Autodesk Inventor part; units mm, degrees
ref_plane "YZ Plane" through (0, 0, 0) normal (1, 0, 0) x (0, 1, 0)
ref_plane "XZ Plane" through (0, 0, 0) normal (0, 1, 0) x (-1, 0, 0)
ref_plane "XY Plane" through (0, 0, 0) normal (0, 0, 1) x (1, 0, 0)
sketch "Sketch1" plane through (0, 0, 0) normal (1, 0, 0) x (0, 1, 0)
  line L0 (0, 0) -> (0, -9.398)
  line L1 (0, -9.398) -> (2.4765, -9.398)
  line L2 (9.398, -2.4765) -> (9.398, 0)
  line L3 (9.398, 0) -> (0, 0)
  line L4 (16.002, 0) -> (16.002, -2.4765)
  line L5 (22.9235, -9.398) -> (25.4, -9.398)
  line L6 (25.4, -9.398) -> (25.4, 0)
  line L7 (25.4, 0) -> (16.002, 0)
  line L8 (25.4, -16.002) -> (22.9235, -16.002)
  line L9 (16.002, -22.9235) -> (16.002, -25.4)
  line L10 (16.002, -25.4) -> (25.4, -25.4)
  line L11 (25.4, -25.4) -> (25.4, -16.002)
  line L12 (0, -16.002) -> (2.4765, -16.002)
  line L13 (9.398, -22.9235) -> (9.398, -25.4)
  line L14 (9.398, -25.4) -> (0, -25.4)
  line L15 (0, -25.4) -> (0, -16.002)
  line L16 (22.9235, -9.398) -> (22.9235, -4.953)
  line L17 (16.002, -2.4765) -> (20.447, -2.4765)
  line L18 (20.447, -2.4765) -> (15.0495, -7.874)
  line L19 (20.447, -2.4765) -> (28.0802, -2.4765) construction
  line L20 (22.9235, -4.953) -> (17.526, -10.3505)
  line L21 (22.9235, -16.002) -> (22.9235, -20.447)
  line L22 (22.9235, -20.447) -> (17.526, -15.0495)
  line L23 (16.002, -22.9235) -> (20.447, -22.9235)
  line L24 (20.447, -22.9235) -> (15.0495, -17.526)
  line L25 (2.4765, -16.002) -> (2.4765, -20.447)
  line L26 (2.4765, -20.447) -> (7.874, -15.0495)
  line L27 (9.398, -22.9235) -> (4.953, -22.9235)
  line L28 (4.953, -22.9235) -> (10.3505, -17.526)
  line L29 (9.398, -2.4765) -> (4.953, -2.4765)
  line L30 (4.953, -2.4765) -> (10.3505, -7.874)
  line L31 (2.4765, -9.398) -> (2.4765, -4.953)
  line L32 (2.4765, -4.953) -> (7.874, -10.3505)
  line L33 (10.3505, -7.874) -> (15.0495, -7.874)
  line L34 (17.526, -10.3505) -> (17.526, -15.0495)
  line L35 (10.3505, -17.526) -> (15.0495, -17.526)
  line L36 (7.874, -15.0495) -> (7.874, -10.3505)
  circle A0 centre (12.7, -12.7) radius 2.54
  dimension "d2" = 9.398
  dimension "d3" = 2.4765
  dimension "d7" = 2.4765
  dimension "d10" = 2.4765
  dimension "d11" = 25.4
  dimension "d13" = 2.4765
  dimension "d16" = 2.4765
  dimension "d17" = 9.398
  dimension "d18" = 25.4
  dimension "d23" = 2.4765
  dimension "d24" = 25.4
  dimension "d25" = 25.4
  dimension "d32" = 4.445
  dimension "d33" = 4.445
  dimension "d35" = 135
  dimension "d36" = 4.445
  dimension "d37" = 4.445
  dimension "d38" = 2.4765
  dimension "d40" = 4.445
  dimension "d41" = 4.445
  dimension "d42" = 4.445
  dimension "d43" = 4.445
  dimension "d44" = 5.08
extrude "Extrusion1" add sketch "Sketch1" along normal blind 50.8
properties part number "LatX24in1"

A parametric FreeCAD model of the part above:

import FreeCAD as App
import Part
import Sketcher

V = App.Vector
Q = App.Units.Quantity


def add_polygon(sketch, points):
    """Adds a closed chain of lines whose ends are joined by coincident constraints."""
    first, n = sketch.GeometryCount, len(points)
    for a, b in zip(points, points[1:] + points[:1]):
        sketch.addGeometry(Part.LineSegment(App.Vector(*a, 0), App.Vector(*b, 0)), False)
    for i in range(n):
        sketch.addConstraint(Sketcher.Constraint("Coincident", first + i, 2, first + (i + 1) % n, 1))

doc = App.newDocument("Part")
body = doc.addObject("PartDesign::Body", "Body")

# Sketch on YZ plane
sketch1 = body.newObject("Sketcher::SketchObject", "Sketch")
sketch1.AttachmentSupport = (doc.getObject("YZ_Plane"), [""])
sketch1.MapMode = "FlatFace"
add_polygon(sketch1, [(9.4, 0), (0, 0), (0, -9.4), (2.5, -9.4), (2.5, -5), (7.9, -10.4), (7.9, -15), (2.5, -20.4), (2.5, -16), (0, -16), (0, -25.4), (9.4, -25.4), (9.4, -22.9), (5, -22.9), (10.4, -17.5), (15, -17.5), (20.4, -22.9), (16, -22.9), (16, -25.4), (25.4, -25.4), (25.4, -16), (22.9, -16), (22.9, -20.4), (17.5, -15), (17.5, -10.4), (22.9, -5), (22.9, -9.4), (25.4, -9.4), (25.4, 0), (16, 0), (16, -2.5), (20.4, -2.5), (15, -7.9), (10.4, -7.9), (5, -2.5), (9.4, -2.5)])  # lines 0-35
sketch1.addGeometry(Part.Circle(V(12.7, -12.7, 0), V(0, 0, 1), 2.5), False)  # 36
sketch1.addConstraint(Sketcher.Constraint("Horizontal", 0))
sketch1.addConstraint(Sketcher.Constraint("Vertical", 1))
sketch1.addConstraint(Sketcher.Constraint("Horizontal", 2))
sketch1.addConstraint(Sketcher.Constraint("Vertical", 3))
sketch1.addConstraint(Sketcher.Constraint("Vertical", 5))
sketch1.addConstraint(Sketcher.Constraint("Vertical", 7))
sketch1.addConstraint(Sketcher.Constraint("Horizontal", 8))
sketch1.addConstraint(Sketcher.Constraint("Vertical", 9))
sketch1.addConstraint(Sketcher.Constraint("Horizontal", 10))
sketch1.addConstraint(Sketcher.Constraint("Vertical", 11))
sketch1.addConstraint(Sketcher.Constraint("Horizontal", 12))
sketch1.addConstraint(Sketcher.Constraint("Horizontal", 14))
sketch1.addConstraint(Sketcher.Constraint("Horizontal", 16))
sketch1.addConstraint(Sketcher.Constraint("Vertical", 17))
sketch1.addConstraint(Sketcher.Constraint("Horizontal", 18))
sketch1.addConstraint(Sketcher.Constraint("Vertical", 19))
sketch1.addConstraint(Sketcher.Constraint("Horizontal", 20))
sketch1.addConstraint(Sketcher.Constraint("Vertical", 21))
sketch1.addConstraint(Sketcher.Constraint("Vertical", 23))
sketch1.addConstraint(Sketcher.Constraint("Vertical", 25))
sketch1.addConstraint(Sketcher.Constraint("Horizontal", 26))
sketch1.addConstraint(Sketcher.Constraint("Vertical", 27))
sketch1.addConstraint(Sketcher.Constraint("Horizontal", 28))
sketch1.addConstraint(Sketcher.Constraint("Vertical", 29))
sketch1.addConstraint(Sketcher.Constraint("Horizontal", 30))
sketch1.addConstraint(Sketcher.Constraint("Horizontal", 32))
sketch1.addConstraint(Sketcher.Constraint("Horizontal", 34))
sketch1.addConstraint(Sketcher.Constraint("Vertical", 35))
sketch1.addConstraint(Sketcher.Constraint("Coincident", 0, 2, -1, 1))
sketch1.addConstraint(Sketcher.Constraint("PointOnObject", 8, 2, -2))
sketch1.addConstraint(Sketcher.Constraint("PointOnObject", 27, 2, -1))
sketch1.addConstraint(Sketcher.Constraint("Perpendicular", 4, 6))
sketch1.addConstraint(Sketcher.Constraint("Parallel", 6, 13))
sketch1.addConstraint(Sketcher.Constraint("Perpendicular", 13, 15))
sketch1.addConstraint(Sketcher.Constraint("Parallel", 15, 22))
sketch1.addConstraint(Sketcher.Constraint("Perpendicular", 22, 24))
sketch1.addConstraint(Sketcher.Constraint("Parallel", 24, 31))
sketch1.addConstraint(Sketcher.Constraint("Perpendicular", 31, 33))
sketch1.addConstraint(Sketcher.Constraint("Horizontal", 12, 2, 15, 2))
sketch1.addConstraint(Sketcher.Constraint("Horizontal", 10, 2, 17, 2))
sketch1.addConstraint(Sketcher.Constraint("Horizontal", 8, 2, 19, 2))
sketch1.addConstraint(Sketcher.Constraint("Horizontal", 6, 2, 21, 2))
sketch1.addConstraint(Sketcher.Constraint("Horizontal", 5, 2, 22, 2))
sketch1.addConstraint(Sketcher.Constraint("Horizontal", 4, 2, 23, 2))
sketch1.addConstraint(Sketcher.Constraint("Horizontal", 3, 2, 24, 2))
sketch1.addConstraint(Sketcher.Constraint("Horizontal", 2, 2, 25, 2))
sketch1.addConstraint(Sketcher.Constraint("Horizontal", 30, 2, 33, 2))
sketch1.addConstraint(Sketcher.Constraint("Vertical", 3, 2, 6, 2))
sketch1.addConstraint(Sketcher.Constraint("Vertical", 21, 2, 24, 2))
sketch1.addConstraint(Sketcher.Constraint("Vertical", 19, 2, 26, 2))
sketch1.addConstraint(Sketcher.Constraint("Vertical", 17, 2, 28, 2))
sketch1.addConstraint(Sketcher.Constraint("Vertical", 15, 2, 30, 2))
sketch1.addConstraint(Sketcher.Constraint("Vertical", 14, 2, 31, 2))
sketch1.addConstraint(Sketcher.Constraint("Vertical", 13, 2, 32, 2))
sketch1.addConstraint(Sketcher.Constraint("Vertical", 11, 2, 34, 2))
sketch1.addConstraint(Sketcher.Constraint("Equal", 12, 16))
sketch1.addConstraint(Sketcher.Constraint("Equal", 10, 18))
sketch1.addConstraint(Sketcher.Constraint("Equal", 8, 20))
sketch1.addConstraint(Sketcher.Constraint("Equal", 28, 1))
sketch1.addConstraint(Sketcher.Constraint("Equal", 34, 3))
sketch1.addConstraint(Sketcher.Constraint("Equal", 32, 5))
sketch1.addConstraint(Sketcher.Constraint("Equal", 3, 7))
sketch1.addConstraint(Sketcher.Constraint("Equal", 1, 9))
sketch1.addConstraint(Sketcher.Constraint("Equal", 26, 11))
sketch1.addConstraint(Sketcher.Constraint("Equal", 17, 29))
sketch1.addConstraint(Sketcher.Constraint("Equal", 6, 13))
sketch1.addConstraint(Sketcher.Constraint("Diameter", 36, Q("0.2 in")))
sketch1.addConstraint(Sketcher.Constraint("DistanceY", 9, 2, -1, 1, Q("1 in")))
sketch1.addConstraint(Sketcher.Constraint("DistanceX", 0, 2, 0, 1, Q("0.37 in")))
sketch1.addConstraint(Sketcher.Constraint("DistanceX", 12, 2, 12, 1, Q("0.175 in")))
sketch1.addConstraint(Sketcher.Constraint("DistanceX", 2, 1, 2, 2, Q("0.0975 in")))
sketch1.addConstraint(Sketcher.Constraint("DistanceX", -1, 1, 36, 3, Q("0.5 in")))
sketch1.addConstraint(Sketcher.Constraint("DistanceY", 36, 3, -1, 1, Q("0.5 in")))
sketch1.addConstraint(Sketcher.Constraint("DistanceX", 14, 1, 14, 2, Q("0.185 in")))
pad1 = body.newObject("PartDesign::Pad", "Pad")
pad1.Profile = sketch1
pad1.Length = Q("2 in")

doc.recompute()
